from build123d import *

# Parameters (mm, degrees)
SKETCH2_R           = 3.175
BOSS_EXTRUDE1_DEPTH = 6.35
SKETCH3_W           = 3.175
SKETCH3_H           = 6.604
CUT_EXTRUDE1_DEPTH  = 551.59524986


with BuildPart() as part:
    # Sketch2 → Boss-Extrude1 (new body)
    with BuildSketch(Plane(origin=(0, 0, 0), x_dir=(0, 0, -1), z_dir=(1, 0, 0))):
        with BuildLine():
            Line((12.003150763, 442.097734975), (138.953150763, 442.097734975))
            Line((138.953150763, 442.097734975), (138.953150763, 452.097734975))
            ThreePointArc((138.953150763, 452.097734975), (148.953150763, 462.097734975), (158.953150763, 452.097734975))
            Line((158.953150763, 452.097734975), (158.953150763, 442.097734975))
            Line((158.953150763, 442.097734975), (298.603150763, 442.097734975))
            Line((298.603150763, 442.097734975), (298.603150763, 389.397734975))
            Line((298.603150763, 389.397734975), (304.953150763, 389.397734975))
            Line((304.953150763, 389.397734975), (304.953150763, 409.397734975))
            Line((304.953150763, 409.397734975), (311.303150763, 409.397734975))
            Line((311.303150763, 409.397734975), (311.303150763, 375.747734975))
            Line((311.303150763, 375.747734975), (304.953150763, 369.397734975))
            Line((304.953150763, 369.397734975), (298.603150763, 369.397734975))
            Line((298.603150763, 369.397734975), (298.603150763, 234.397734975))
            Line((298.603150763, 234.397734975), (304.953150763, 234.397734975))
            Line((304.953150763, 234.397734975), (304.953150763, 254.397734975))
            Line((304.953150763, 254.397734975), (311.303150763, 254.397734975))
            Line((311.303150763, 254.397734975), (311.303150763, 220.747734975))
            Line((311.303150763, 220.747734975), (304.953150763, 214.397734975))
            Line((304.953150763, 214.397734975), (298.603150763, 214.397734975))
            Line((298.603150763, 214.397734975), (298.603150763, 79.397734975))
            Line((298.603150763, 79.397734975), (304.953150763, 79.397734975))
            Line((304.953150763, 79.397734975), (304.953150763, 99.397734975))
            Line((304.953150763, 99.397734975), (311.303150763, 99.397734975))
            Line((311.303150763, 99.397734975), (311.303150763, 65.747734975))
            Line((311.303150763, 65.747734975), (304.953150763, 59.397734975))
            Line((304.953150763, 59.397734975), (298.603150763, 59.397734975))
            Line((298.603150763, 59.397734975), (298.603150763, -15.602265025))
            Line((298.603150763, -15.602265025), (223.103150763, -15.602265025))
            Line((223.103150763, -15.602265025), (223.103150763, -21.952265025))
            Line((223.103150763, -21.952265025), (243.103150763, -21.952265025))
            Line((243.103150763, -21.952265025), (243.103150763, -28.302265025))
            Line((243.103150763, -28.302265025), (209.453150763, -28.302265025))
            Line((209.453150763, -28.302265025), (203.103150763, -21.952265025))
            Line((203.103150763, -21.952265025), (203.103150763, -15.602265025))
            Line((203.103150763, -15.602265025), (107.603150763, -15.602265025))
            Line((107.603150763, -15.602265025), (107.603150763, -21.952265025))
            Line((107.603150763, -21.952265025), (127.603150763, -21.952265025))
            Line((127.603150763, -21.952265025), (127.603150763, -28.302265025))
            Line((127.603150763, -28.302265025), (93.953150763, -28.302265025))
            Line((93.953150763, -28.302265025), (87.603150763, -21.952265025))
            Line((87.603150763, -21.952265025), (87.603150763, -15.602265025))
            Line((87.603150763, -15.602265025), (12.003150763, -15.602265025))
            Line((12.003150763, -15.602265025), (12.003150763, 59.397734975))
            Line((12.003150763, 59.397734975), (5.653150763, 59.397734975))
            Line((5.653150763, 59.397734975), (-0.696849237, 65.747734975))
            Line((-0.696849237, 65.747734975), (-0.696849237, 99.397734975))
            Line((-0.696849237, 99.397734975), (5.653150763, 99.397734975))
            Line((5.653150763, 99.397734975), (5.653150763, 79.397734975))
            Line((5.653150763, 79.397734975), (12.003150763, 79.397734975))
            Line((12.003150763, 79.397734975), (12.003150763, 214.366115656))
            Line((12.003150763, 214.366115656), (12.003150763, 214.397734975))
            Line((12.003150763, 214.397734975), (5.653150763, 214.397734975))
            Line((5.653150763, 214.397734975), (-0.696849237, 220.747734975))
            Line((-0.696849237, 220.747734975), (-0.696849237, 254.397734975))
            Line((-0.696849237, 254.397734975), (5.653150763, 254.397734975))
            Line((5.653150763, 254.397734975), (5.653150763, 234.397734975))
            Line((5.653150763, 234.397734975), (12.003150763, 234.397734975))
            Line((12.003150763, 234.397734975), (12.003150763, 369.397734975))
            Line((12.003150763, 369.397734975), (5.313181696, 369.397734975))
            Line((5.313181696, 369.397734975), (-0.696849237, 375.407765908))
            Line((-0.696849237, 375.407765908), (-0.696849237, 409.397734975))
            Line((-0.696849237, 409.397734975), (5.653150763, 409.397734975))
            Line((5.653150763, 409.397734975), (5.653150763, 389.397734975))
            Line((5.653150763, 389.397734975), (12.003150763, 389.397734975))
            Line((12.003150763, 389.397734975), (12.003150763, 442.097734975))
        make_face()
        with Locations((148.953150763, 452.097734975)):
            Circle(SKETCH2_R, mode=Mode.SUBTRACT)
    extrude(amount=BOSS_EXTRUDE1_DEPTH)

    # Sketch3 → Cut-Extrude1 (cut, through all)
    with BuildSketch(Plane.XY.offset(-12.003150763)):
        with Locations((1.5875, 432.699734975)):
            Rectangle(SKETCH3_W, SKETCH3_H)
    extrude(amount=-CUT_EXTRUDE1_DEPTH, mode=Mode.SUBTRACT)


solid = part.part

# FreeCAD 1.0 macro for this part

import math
import FreeCAD as App
import Part
import Sketcher
from FreeCAD import Vector

doc = App.newDocument("Part")
body = doc.addObject("PartDesign::Body", "Body")

sketch1 = body.newObject("Sketcher::SketchObject", "Sketch")
sketch1.AttachmentSupport = (doc.getObject("YZ_Plane"), [""])
sketch1.MapMode = "FlatFace"
sketch1.addGeometry([
    Part.LineSegment(Vector(442.097735, -138.953151, 0), Vector(442.097735, -12.003151, 0)),
    Part.LineSegment(Vector(442.097735, -12.003151, 0), Vector(389.397735, -12.003151, 0)),
    Part.LineSegment(Vector(389.397735, -12.003151, 0), Vector(389.397735, -5.653151, 0)),
    Part.LineSegment(Vector(389.397735, -5.653151, 0), Vector(409.397735, -5.653151, 0)),
    Part.LineSegment(Vector(409.397735, -5.653151, 0), Vector(409.397735, 0.696849, 0)),
    Part.LineSegment(Vector(409.397735, 0.696849, 0), Vector(375.407766, 0.696849, 0)),
    Part.LineSegment(Vector(375.407766, 0.696849, 0), Vector(369.397735, -5.313182, 0)),
    Part.LineSegment(Vector(369.397735, -5.313182, 0), Vector(369.397735, -12.003151, 0)),
    Part.LineSegment(Vector(369.397735, -12.003151, 0), Vector(234.397735, -12.003151, 0)),
    Part.LineSegment(Vector(234.397735, -12.003151, 0), Vector(234.397735, -5.653151, 0)),
    Part.LineSegment(Vector(234.397735, -5.653151, 0), Vector(254.397735, -5.653151, 0)),
    Part.LineSegment(Vector(254.397735, -5.653151, 0), Vector(254.397735, 0.696849, 0)),
    Part.LineSegment(Vector(254.397735, 0.696849, 0), Vector(220.747735, 0.696849, 0)),
    Part.LineSegment(Vector(220.747735, 0.696849, 0), Vector(214.397735, -5.653151, 0)),
    Part.LineSegment(Vector(214.397735, -5.653151, 0), Vector(214.397735, -12.003151, 0)),
    Part.LineSegment(Vector(214.397735, -12.003151, 0), Vector(79.397735, -12.003151, 0)),
    Part.LineSegment(Vector(79.397735, -12.003151, 0), Vector(79.397735, -5.653151, 0)),
    Part.LineSegment(Vector(79.397735, -5.653151, 0), Vector(99.397735, -5.653151, 0)),
    Part.LineSegment(Vector(99.397735, -5.653151, 0), Vector(99.397735, 0.696849, 0)),
    Part.LineSegment(Vector(99.397735, 0.696849, 0), Vector(65.747735, 0.696849, 0)),
    Part.LineSegment(Vector(65.747735, 0.696849, 0), Vector(59.397735, -5.653151, 0)),
    Part.LineSegment(Vector(59.397735, -5.653151, 0), Vector(59.397735, -12.003151, 0)),
    Part.LineSegment(Vector(59.397735, -12.003151, 0), Vector(-15.602265, -12.003151, 0)),
    Part.LineSegment(Vector(-15.602265, -12.003151, 0), Vector(-15.602265, -87.603151, 0)),
    Part.LineSegment(Vector(-15.602265, -87.603151, 0), Vector(-21.952265, -87.603151, 0)),
    Part.LineSegment(Vector(-21.952265, -87.603151, 0), Vector(-28.302265, -93.953151, 0)),
    Part.LineSegment(Vector(-28.302265, -93.953151, 0), Vector(-28.302265, -127.603151, 0)),
    Part.LineSegment(Vector(-28.302265, -127.603151, 0), Vector(-21.952265, -127.603151, 0)),
    Part.LineSegment(Vector(-21.952265, -127.603151, 0), Vector(-21.952265, -107.603151, 0)),
    Part.LineSegment(Vector(-21.952265, -107.603151, 0), Vector(-15.602265, -107.603151, 0)),
    Part.LineSegment(Vector(-15.602265, -107.603151, 0), Vector(-15.602265, -203.103151, 0)),
    Part.LineSegment(Vector(-15.602265, -203.103151, 0), Vector(-21.952265, -203.103151, 0)),
    Part.LineSegment(Vector(-21.952265, -203.103151, 0), Vector(-28.302265, -209.453151, 0)),
    Part.LineSegment(Vector(-28.302265, -209.453151, 0), Vector(-28.302265, -243.103151, 0)),
    Part.LineSegment(Vector(-28.302265, -243.103151, 0), Vector(-21.952265, -243.103151, 0)),
    Part.LineSegment(Vector(-21.952265, -243.103151, 0), Vector(-21.952265, -223.103151, 0)),
    Part.LineSegment(Vector(-21.952265, -223.103151, 0), Vector(-15.602265, -223.103151, 0)),
    Part.LineSegment(Vector(-15.602265, -223.103151, 0), Vector(-15.602265, -298.603151, 0)),
    Part.LineSegment(Vector(-15.602265, -298.603151, 0), Vector(59.397735, -298.603151, 0)),
    Part.LineSegment(Vector(59.397735, -298.603151, 0), Vector(59.397735, -304.953151, 0)),
    Part.LineSegment(Vector(59.397735, -304.953151, 0), Vector(65.747735, -311.303151, 0)),
    Part.LineSegment(Vector(65.747735, -311.303151, 0), Vector(99.397735, -311.303151, 0)),
    Part.LineSegment(Vector(99.397735, -311.303151, 0), Vector(99.397735, -304.953151, 0)),
    Part.LineSegment(Vector(99.397735, -304.953151, 0), Vector(79.397735, -304.953151, 0)),
    Part.LineSegment(Vector(79.397735, -304.953151, 0), Vector(79.397735, -298.603151, 0)),
    Part.LineSegment(Vector(79.397735, -298.603151, 0), Vector(214.397735, -298.603151, 0)),
    Part.LineSegment(Vector(214.397735, -298.603151, 0), Vector(214.397735, -304.953151, 0)),
    Part.LineSegment(Vector(214.397735, -304.953151, 0), Vector(220.747735, -311.303151, 0)),
    Part.LineSegment(Vector(220.747735, -311.303151, 0), Vector(254.397735, -311.303151, 0)),
    Part.LineSegment(Vector(254.397735, -311.303151, 0), Vector(254.397735, -304.953151, 0)),
    Part.LineSegment(Vector(254.397735, -304.953151, 0), Vector(234.397735, -304.953151, 0)),
    Part.LineSegment(Vector(234.397735, -304.953151, 0), Vector(234.397735, -298.603151, 0)),
    Part.LineSegment(Vector(234.397735, -298.603151, 0), Vector(369.397735, -298.603151, 0)),
    Part.LineSegment(Vector(369.397735, -298.603151, 0), Vector(369.397735, -304.953151, 0)),
    Part.LineSegment(Vector(369.397735, -304.953151, 0), Vector(375.747735, -311.303151, 0)),
    Part.LineSegment(Vector(375.747735, -311.303151, 0), Vector(409.397735, -311.303151, 0)),
    Part.LineSegment(Vector(409.397735, -311.303151, 0), Vector(409.397735, -304.953151, 0)),
    Part.LineSegment(Vector(409.397735, -304.953151, 0), Vector(389.397735, -304.953151, 0)),
    Part.LineSegment(Vector(389.397735, -304.953151, 0), Vector(389.397735, -298.603151, 0)),
    Part.LineSegment(Vector(389.397735, -298.603151, 0), Vector(442.097735, -298.603151, 0)),
    Part.LineSegment(Vector(442.097735, -298.603151, 0), Vector(442.097735, -158.953151, 0)),
    Part.LineSegment(Vector(442.097735, -158.953151, 0), Vector(452.097735, -158.953151, 0)),
    Part.ArcOfCircle(Part.Circle(Vector(452.097735, -148.953151, 0), Vector(0, 0, 1), 10), math.radians(-90), math.radians(90)),
    Part.LineSegment(Vector(452.097735, -138.953151, 0), Vector(442.097735, -138.953151, 0)),
    Part.Circle(Vector(452.097735, -148.953151, 0), Vector(0, 0, 1), 3.175),
], False)
sketch1.addConstraint([
    Sketcher.Constraint("Coincident", 0, 2, 1, 1),
    Sketcher.Constraint("Coincident", 1, 2, 2, 1),
    Sketcher.Constraint("Coincident", 2, 2, 3, 1),
    Sketcher.Constraint("Coincident", 3, 2, 4, 1),
    Sketcher.Constraint("Coincident", 4, 2, 5, 1),
    Sketcher.Constraint("Coincident", 5, 2, 6, 1),
    Sketcher.Constraint("Coincident", 6, 2, 7, 1),
    Sketcher.Constraint("Coincident", 7, 2, 8, 1),
    Sketcher.Constraint("Coincident", 8, 2, 9, 1),
    Sketcher.Constraint("Coincident", 9, 2, 10, 1),
    Sketcher.Constraint("Coincident", 10, 2, 11, 1),
    Sketcher.Constraint("Coincident", 11, 2, 12, 1),
    Sketcher.Constraint("Coincident", 12, 2, 13, 1),
    Sketcher.Constraint("Coincident", 13, 2, 14, 1),
    Sketcher.Constraint("Coincident", 14, 2, 15, 1),
    Sketcher.Constraint("Coincident", 15, 2, 16, 1),
    Sketcher.Constraint("Coincident", 16, 2, 17, 1),
    Sketcher.Constraint("Coincident", 17, 2, 18, 1),
    Sketcher.Constraint("Coincident", 18, 2, 19, 1),
    Sketcher.Constraint("Coincident", 19, 2, 20, 1),
    Sketcher.Constraint("Coincident", 20, 2, 21, 1),
    Sketcher.Constraint("Coincident", 21, 2, 22, 1),
    Sketcher.Constraint("Coincident", 22, 2, 23, 1),
    Sketcher.Constraint("Coincident", 23, 2, 24, 1),
    Sketcher.Constraint("Coincident", 24, 2, 25, 1),
    Sketcher.Constraint("Coincident", 25, 2, 26, 1),
    Sketcher.Constraint("Coincident", 26, 2, 27, 1),
    Sketcher.Constraint("Coincident", 27, 2, 28, 1),
    Sketcher.Constraint("Coincident", 28, 2, 29, 1),
    Sketcher.Constraint("Coincident", 29, 2, 30, 1),
    Sketcher.Constraint("Coincident", 30, 2, 31, 1),
    Sketcher.Constraint("Coincident", 31, 2, 32, 1),
    Sketcher.Constraint("Coincident", 32, 2, 33, 1),
    Sketcher.Constraint("Coincident", 33, 2, 34, 1),
    Sketcher.Constraint("Coincident", 34, 2, 35, 1),
    Sketcher.Constraint("Coincident", 35, 2, 36, 1),
    Sketcher.Constraint("Coincident", 36, 2, 37, 1),
    Sketcher.Constraint("Coincident", 37, 2, 38, 1),
    Sketcher.Constraint("Coincident", 38, 2, 39, 1),
    Sketcher.Constraint("Coincident", 39, 2, 40, 1),
    Sketcher.Constraint("Coincident", 40, 2, 41, 1),
    Sketcher.Constraint("Coincident", 41, 2, 42, 1),
    Sketcher.Constraint("Coincident", 42, 2, 43, 1),
    Sketcher.Constraint("Coincident", 43, 2, 44, 1),
    Sketcher.Constraint("Coincident", 44, 2, 45, 1),
    Sketcher.Constraint("Coincident", 45, 2, 46, 1),
    Sketcher.Constraint("Coincident", 46, 2, 47, 1),
    Sketcher.Constraint("Coincident", 47, 2, 48, 1),
    Sketcher.Constraint("Coincident", 48, 2, 49, 1),
    Sketcher.Constraint("Coincident", 49, 2, 50, 1),
    Sketcher.Constraint("Coincident", 50, 2, 51, 1),
    Sketcher.Constraint("Coincident", 51, 2, 52, 1),
    Sketcher.Constraint("Coincident", 52, 2, 53, 1),
    Sketcher.Constraint("Coincident", 53, 2, 54, 1),
    Sketcher.Constraint("Coincident", 54, 2, 55, 1),
    Sketcher.Constraint("Coincident", 55, 2, 56, 1),
    Sketcher.Constraint("Coincident", 56, 2, 57, 1),
    Sketcher.Constraint("Coincident", 57, 2, 58, 1),
    Sketcher.Constraint("Coincident", 58, 2, 59, 1),
    Sketcher.Constraint("Coincident", 59, 2, 60, 1),
    Sketcher.Constraint("Coincident", 60, 2, 61, 1),
    Sketcher.Constraint("Tangent", 61, 2, 62, 1),
    Sketcher.Constraint("Tangent", 62, 2, 63, 1),
    Sketcher.Constraint("Coincident", 63, 2, 0, 1),
    Sketcher.Constraint("Vertical", 0),
    Sketcher.Constraint("Horizontal", 1),
    Sketcher.Constraint("Vertical", 2),
    Sketcher.Constraint("Horizontal", 3),
    Sketcher.Constraint("Vertical", 4),
    Sketcher.Constraint("Horizontal", 5),
    Sketcher.Constraint("Vertical", 7),
    Sketcher.Constraint("Horizontal", 8),
    Sketcher.Constraint("Vertical", 9),
    Sketcher.Constraint("Horizontal", 10),
    Sketcher.Constraint("Vertical", 11),
    Sketcher.Constraint("Horizontal", 12),
    Sketcher.Constraint("Vertical", 14),
    Sketcher.Constraint("Horizontal", 15),
    Sketcher.Constraint("Vertical", 16),
    Sketcher.Constraint("Horizontal", 17),
    Sketcher.Constraint("Vertical", 18),
    Sketcher.Constraint("Horizontal", 19),
    Sketcher.Constraint("Vertical", 21),
    Sketcher.Constraint("Horizontal", 22),
    Sketcher.Constraint("Vertical", 23),
    Sketcher.Constraint("Horizontal", 24),
    Sketcher.Constraint("Vertical", 26),
    Sketcher.Constraint("Horizontal", 27),
    Sketcher.Constraint("Vertical", 28),
    Sketcher.Constraint("Horizontal", 29),
    Sketcher.Constraint("Vertical", 30),
    Sketcher.Constraint("Horizontal", 31),
    Sketcher.Constraint("Vertical", 33),
    Sketcher.Constraint("Horizontal", 34),
    Sketcher.Constraint("Vertical", 35),
    Sketcher.Constraint("Horizontal", 36),
    Sketcher.Constraint("Vertical", 37),
    Sketcher.Constraint("Horizontal", 38),
    Sketcher.Constraint("Vertical", 39),
    Sketcher.Constraint("Horizontal", 41),
    Sketcher.Constraint("Vertical", 42),
    Sketcher.Constraint("Horizontal", 43),
    Sketcher.Constraint("Vertical", 44),
    Sketcher.Constraint("Horizontal", 45),
    Sketcher.Constraint("Vertical", 46),
    Sketcher.Constraint("Horizontal", 48),
    Sketcher.Constraint("Vertical", 49),
    Sketcher.Constraint("Horizontal", 50),
    Sketcher.Constraint("Vertical", 51),
    Sketcher.Constraint("Horizontal", 52),
    Sketcher.Constraint("Vertical", 53),
    Sketcher.Constraint("Horizontal", 55),
    Sketcher.Constraint("Vertical", 56),
    Sketcher.Constraint("Horizontal", 57),
    Sketcher.Constraint("Vertical", 58),
    Sketcher.Constraint("Horizontal", 59),
    Sketcher.Constraint("Vertical", 60),
    Sketcher.Constraint("Horizontal", 61),
    Sketcher.Constraint("Horizontal", 63),
    Sketcher.Constraint("Coincident", 64, 3, 62, 3),
    Sketcher.Constraint("Parallel", 6, 13),
    Sketcher.Constraint("Parallel", 13, 20),
    Sketcher.Constraint("Parallel", 20, 25),
    Sketcher.Constraint("Parallel", 25, 32),
    Sketcher.Constraint("Perpendicular", 32, 40),
    Sketcher.Constraint("Parallel", 40, 47),
    Sketcher.Constraint("Parallel", 47, 54),
    Sketcher.Constraint("Horizontal", 1, 2, 7, 2),
    Sketcher.Constraint("Horizontal", 3, 2, 9, 2),
    Sketcher.Constraint("Horizontal", 5, 2, 11, 2),
    Sketcher.Constraint("Horizontal", 10, 2, 13, 2),
    Sketcher.Constraint("Horizontal", 8, 2, 14, 2),
    Sketcher.Constraint("Horizontal", 13, 2, 16, 2),
    Sketcher.Constraint("Horizontal", 12, 2, 18, 2),
    Sketcher.Constraint("Horizontal", 17, 2, 20, 2),
    Sketcher.Constraint("Horizontal", 15, 2, 21, 2),
    Sketcher.Constraint("Horizontal", 39, 2, 42, 2),
    Sketcher.Constraint("Horizontal", 38, 2, 44, 2),
    Sketcher.Constraint("Horizontal", 43, 2, 46, 2),
    Sketcher.Constraint("Horizontal", 41, 2, 47, 2),
    Sketcher.Constraint("Horizontal", 46, 2, 49, 2),
    Sketcher.Constraint("Horizontal", 45, 2, 51, 2),
    Sketcher.Constraint("Horizontal", 50, 2, 53, 2),
    Sketcher.Constraint("Horizontal", 48, 2, 54, 2),
    Sketcher.Constraint("Horizontal", 53, 2, 56, 2),
    Sketcher.Constraint("Horizontal", 52, 2, 58, 2),
    Sketcher.Constraint("Vertical", 24, 2, 27, 2),
    Sketcher.Constraint("Vertical", 23, 2, 29, 2),
    Sketcher.Constraint("Vertical", 28, 2, 31, 2),
    Sketcher.Constraint("Vertical", 26, 2, 32, 2),
    Sketcher.Constraint("Vertical", 31, 2, 34, 2),
    Sketcher.Constraint("Vertical", 30, 2, 36, 2),
    Sketcher.Constraint("Vertical", 21, 2, 38, 2),
    Sketcher.Constraint("Vertical", 19, 2, 40, 2),
    Sketcher.Constraint("Vertical", 18, 2, 41, 2),
    Sketcher.Constraint("Vertical", 16, 2, 43, 2),
    Sketcher.Constraint("Vertical", 14, 2, 45, 2),
    Sketcher.Constraint("Vertical", 11, 2, 48, 2),
    Sketcher.Constraint("Vertical", 9, 2, 50, 2),
    Sketcher.Constraint("Vertical", 7, 2, 52, 2),
    Sketcher.Constraint("Vertical", 4, 2, 55, 2),
    Sketcher.Constraint("Vertical", 2, 2, 57, 2),
    Sketcher.Constraint("Vertical", 0, 2, 59, 2),
    Sketcher.Constraint("Equal", 3, 10),
    Sketcher.Constraint("Equal", 8, 15),
    Sketcher.Constraint("Equal", 10, 17),
    Sketcher.Constraint("Equal", 12, 19),
    Sketcher.Constraint("Equal", 24, 27),
    Sketcher.Constraint("Equal", 48, 55),
    Sketcher.Constraint("Equal", 36, 2),
    Sketcher.Constraint("Equal", 2, 4),
    Sketcher.Constraint("Equal", 55, 26),
    Sketcher.Constraint("Equal", 57, 28),
    Sketcher.Constraint("Equal", 26, 33),
    Sketcher.Constraint("Equal", 28, 35),
    Sketcher.Constraint("Equal", 21, 39),
    Sketcher.Constraint("Equal", 39, 42),
    Sketcher.Constraint("Radius", 62, 10.0),
    Sketcher.Constraint("Diameter", 64, 6.35),
    Sketcher.Constraint("DistanceX", 3, 1, 3, 2, 20.0),
    Sketcher.Constraint("DistanceX", 8, 2, 8, 1, 135.0),
    Sketcher.Constraint("DistanceX", 22, 2, 22, 1, 75.0),
    Sketcher.Constraint("DistanceX", 61, 1, 61, 2, 10.0),
    Sketcher.Constraint("DistanceX", 1, 2, 1, 1, 52.7),
    Sketcher.Constraint("DistanceY", 23, 2, 23, 1, 75.6),
    Sketcher.Constraint("DistanceY", 30, 2, 30, 1, 95.5),
    Sketcher.Constraint("DistanceY", 37, 2, 37, 1, 75.5),
    Sketcher.Constraint("DistanceX", 12, 2, 12, 1, 33.65),
    Sketcher.Constraint("DistanceX", 24, 2, 24, 1, 6.35),
    Sketcher.Constraint("DistanceY", 0, 1, 0, 2, 126.95),
    Sketcher.Constraint("DistanceX", 5, 2, 5, 1, 33.989969),
    Sketcher.Constraint("DistanceY", 62, 3, -1, 1, 148.953151),
    Sketcher.Constraint("DistanceX", -1, 1, 62, 3, 452.097735),
])
pad1 = body.newObject("PartDesign::Pad", "Pad")
pad1.Profile = sketch1
pad1.Length = 6.35

sketch2 = body.newObject("Sketcher::SketchObject", "Sketch001")
sketch2.AttachmentSupport = (doc.getObject("XY_Plane"), [""])
sketch2.MapMode = "FlatFace"
sketch2.AttachmentOffset = App.Placement(Vector(0, 0, -12.003151), App.Rotation())
sketch2.addGeometry([
    Part.LineSegment(Vector(0, 436.001735, 0), Vector(0, 429.397735, 0)),
    Part.LineSegment(Vector(0, 429.397735, 0), Vector(3.175, 429.397735, 0)),
    Part.LineSegment(Vector(3.175, 429.397735, 0), Vector(3.175, 436.001735, 0)),
    Part.LineSegment(Vector(3.175, 436.001735, 0), Vector(0, 436.001735, 0)),
], False)
sketch2.addConstraint([
    Sketcher.Constraint("Coincident", 0, 2, 1, 1),
    Sketcher.Constraint("Coincident", 1, 2, 2, 1),
    Sketcher.Constraint("Coincident", 2, 2, 3, 1),
    Sketcher.Constraint("Coincident", 3, 2, 0, 1),
    Sketcher.Constraint("Vertical", 0),
    Sketcher.Constraint("Horizontal", 1),
    Sketcher.Constraint("Vertical", 2),
    Sketcher.Constraint("Horizontal", 3),
    Sketcher.Constraint("PointOnObject", 0, 2, -2),
    Sketcher.Constraint("DistanceX", 1, 1, 1, 2, 3.175),
    Sketcher.Constraint("DistanceY", 0, 2, 0, 1, 6.604),
    Sketcher.Constraint("DistanceY", -1, 1, 0, 2, 429.397735),
])
pocket1 = body.newObject("PartDesign::Pocket", "Pocket")
pocket1.Profile = sketch2
pocket1.Type = "ThroughAll"

doc.recompute()
